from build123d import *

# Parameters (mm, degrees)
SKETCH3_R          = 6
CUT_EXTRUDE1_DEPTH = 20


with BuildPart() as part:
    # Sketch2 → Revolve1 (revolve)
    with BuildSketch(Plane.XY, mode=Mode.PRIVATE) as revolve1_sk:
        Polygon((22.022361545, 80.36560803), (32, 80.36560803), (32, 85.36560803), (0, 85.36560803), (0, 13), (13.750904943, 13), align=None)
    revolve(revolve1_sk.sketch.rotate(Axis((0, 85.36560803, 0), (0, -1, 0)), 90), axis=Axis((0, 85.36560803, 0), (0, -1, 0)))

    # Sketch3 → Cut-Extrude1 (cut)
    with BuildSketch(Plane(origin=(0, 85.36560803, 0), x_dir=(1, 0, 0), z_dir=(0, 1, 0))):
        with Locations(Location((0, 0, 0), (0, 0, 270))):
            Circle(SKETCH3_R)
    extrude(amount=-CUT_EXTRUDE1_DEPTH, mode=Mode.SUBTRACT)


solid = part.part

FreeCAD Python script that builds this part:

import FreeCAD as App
import Part
import Sketcher
from FreeCAD import Vector
Q = App.Units.Quantity


def add_polygon(sketch, points):
    """Adds a closed chain of lines whose ends are joined by coincident constraints."""
    first, n = sketch.GeometryCount, len(points)
    for a, b in zip(points, points[1:] + points[:1]):
        sketch.addGeometry(Part.LineSegment(App.Vector(*a, 0), App.Vector(*b, 0)), False)
    for i in range(n):
        sketch.addConstraint(Sketcher.Constraint("Coincident", first + i, 2, first + (i + 1) % n, 1))

doc = App.newDocument("Part")
body = doc.addObject("PartDesign::Body", "Body")

sketch1 = doc.addObject("Sketcher::SketchObject", "Sketch")
body.addObject(sketch1)
sketch1.AttachmentSupport = (doc.XY_Plane, [""])
sketch1.MapMode = "FlatFace"
add_polygon(sketch1, [(22, 80), (32, 80), (32, 85), (0, 85), (0, 13), (14, 13)])
sketch1.addConstraint([
    Sketcher.Constraint("Horizontal", 0),
    Sketcher.Constraint("Vertical", 1),
    Sketcher.Constraint("Horizontal", 2),
    Sketcher.Constraint("Vertical", 3),
    Sketcher.Constraint("Horizontal", 4),
    Sketcher.Constraint("PointOnObject", 2, 2, -2),
    Sketcher.Constraint("DistanceX", 2, 2, 2, 1, 32.0),
    Sketcher.Constraint("DistanceY", 1, 1, 1, 2, 5.0),
    Sketcher.Constraint("Angle", 5, Q("83 deg")),
    Sketcher.Constraint("DistanceY", -1, 1, 3, 2, 13.0),
    Sketcher.Constraint("DistanceX", 0, 1, 0, 2, 9.977638),
    Sketcher.Constraint("DistanceY", 3, 2, 3, 1, 72.365608),
])
revolution = doc.addObject("PartDesign::Revolution", "Revolution")
body.addObject(revolution)
revolution.Profile = sketch1
revolution.ReferenceAxis = (sketch1, ["V_Axis"])
revolution.Angle = 360

sketch2 = doc.addObject("Sketcher::SketchObject", "Sketch001")
body.addObject(sketch2)
sketch2.AttachmentSupport = (doc.XZ_Plane, [""])
sketch2.MapMode = "FlatFace"
sketch2.AttachmentOffset = App.Placement(Vector(0, 0, -85.365608), App.Rotation())
sketch2.addGeometry(Part.Circle(Vector(0, 0, 0), Vector(0, 0, 1), 6), False)
sketch2.addConstraint([
    Sketcher.Constraint("Coincident", 0, 3, -1, 1),
    Sketcher.Constraint("Diameter", 0, 12.0),
])
pocket1 = doc.addObject("PartDesign::Pocket", "Pocket")
body.addObject(pocket1)
pocket1.Profile = sketch2
pocket1.Length = 20
pocket1.Reversed = True

doc.recompute()
